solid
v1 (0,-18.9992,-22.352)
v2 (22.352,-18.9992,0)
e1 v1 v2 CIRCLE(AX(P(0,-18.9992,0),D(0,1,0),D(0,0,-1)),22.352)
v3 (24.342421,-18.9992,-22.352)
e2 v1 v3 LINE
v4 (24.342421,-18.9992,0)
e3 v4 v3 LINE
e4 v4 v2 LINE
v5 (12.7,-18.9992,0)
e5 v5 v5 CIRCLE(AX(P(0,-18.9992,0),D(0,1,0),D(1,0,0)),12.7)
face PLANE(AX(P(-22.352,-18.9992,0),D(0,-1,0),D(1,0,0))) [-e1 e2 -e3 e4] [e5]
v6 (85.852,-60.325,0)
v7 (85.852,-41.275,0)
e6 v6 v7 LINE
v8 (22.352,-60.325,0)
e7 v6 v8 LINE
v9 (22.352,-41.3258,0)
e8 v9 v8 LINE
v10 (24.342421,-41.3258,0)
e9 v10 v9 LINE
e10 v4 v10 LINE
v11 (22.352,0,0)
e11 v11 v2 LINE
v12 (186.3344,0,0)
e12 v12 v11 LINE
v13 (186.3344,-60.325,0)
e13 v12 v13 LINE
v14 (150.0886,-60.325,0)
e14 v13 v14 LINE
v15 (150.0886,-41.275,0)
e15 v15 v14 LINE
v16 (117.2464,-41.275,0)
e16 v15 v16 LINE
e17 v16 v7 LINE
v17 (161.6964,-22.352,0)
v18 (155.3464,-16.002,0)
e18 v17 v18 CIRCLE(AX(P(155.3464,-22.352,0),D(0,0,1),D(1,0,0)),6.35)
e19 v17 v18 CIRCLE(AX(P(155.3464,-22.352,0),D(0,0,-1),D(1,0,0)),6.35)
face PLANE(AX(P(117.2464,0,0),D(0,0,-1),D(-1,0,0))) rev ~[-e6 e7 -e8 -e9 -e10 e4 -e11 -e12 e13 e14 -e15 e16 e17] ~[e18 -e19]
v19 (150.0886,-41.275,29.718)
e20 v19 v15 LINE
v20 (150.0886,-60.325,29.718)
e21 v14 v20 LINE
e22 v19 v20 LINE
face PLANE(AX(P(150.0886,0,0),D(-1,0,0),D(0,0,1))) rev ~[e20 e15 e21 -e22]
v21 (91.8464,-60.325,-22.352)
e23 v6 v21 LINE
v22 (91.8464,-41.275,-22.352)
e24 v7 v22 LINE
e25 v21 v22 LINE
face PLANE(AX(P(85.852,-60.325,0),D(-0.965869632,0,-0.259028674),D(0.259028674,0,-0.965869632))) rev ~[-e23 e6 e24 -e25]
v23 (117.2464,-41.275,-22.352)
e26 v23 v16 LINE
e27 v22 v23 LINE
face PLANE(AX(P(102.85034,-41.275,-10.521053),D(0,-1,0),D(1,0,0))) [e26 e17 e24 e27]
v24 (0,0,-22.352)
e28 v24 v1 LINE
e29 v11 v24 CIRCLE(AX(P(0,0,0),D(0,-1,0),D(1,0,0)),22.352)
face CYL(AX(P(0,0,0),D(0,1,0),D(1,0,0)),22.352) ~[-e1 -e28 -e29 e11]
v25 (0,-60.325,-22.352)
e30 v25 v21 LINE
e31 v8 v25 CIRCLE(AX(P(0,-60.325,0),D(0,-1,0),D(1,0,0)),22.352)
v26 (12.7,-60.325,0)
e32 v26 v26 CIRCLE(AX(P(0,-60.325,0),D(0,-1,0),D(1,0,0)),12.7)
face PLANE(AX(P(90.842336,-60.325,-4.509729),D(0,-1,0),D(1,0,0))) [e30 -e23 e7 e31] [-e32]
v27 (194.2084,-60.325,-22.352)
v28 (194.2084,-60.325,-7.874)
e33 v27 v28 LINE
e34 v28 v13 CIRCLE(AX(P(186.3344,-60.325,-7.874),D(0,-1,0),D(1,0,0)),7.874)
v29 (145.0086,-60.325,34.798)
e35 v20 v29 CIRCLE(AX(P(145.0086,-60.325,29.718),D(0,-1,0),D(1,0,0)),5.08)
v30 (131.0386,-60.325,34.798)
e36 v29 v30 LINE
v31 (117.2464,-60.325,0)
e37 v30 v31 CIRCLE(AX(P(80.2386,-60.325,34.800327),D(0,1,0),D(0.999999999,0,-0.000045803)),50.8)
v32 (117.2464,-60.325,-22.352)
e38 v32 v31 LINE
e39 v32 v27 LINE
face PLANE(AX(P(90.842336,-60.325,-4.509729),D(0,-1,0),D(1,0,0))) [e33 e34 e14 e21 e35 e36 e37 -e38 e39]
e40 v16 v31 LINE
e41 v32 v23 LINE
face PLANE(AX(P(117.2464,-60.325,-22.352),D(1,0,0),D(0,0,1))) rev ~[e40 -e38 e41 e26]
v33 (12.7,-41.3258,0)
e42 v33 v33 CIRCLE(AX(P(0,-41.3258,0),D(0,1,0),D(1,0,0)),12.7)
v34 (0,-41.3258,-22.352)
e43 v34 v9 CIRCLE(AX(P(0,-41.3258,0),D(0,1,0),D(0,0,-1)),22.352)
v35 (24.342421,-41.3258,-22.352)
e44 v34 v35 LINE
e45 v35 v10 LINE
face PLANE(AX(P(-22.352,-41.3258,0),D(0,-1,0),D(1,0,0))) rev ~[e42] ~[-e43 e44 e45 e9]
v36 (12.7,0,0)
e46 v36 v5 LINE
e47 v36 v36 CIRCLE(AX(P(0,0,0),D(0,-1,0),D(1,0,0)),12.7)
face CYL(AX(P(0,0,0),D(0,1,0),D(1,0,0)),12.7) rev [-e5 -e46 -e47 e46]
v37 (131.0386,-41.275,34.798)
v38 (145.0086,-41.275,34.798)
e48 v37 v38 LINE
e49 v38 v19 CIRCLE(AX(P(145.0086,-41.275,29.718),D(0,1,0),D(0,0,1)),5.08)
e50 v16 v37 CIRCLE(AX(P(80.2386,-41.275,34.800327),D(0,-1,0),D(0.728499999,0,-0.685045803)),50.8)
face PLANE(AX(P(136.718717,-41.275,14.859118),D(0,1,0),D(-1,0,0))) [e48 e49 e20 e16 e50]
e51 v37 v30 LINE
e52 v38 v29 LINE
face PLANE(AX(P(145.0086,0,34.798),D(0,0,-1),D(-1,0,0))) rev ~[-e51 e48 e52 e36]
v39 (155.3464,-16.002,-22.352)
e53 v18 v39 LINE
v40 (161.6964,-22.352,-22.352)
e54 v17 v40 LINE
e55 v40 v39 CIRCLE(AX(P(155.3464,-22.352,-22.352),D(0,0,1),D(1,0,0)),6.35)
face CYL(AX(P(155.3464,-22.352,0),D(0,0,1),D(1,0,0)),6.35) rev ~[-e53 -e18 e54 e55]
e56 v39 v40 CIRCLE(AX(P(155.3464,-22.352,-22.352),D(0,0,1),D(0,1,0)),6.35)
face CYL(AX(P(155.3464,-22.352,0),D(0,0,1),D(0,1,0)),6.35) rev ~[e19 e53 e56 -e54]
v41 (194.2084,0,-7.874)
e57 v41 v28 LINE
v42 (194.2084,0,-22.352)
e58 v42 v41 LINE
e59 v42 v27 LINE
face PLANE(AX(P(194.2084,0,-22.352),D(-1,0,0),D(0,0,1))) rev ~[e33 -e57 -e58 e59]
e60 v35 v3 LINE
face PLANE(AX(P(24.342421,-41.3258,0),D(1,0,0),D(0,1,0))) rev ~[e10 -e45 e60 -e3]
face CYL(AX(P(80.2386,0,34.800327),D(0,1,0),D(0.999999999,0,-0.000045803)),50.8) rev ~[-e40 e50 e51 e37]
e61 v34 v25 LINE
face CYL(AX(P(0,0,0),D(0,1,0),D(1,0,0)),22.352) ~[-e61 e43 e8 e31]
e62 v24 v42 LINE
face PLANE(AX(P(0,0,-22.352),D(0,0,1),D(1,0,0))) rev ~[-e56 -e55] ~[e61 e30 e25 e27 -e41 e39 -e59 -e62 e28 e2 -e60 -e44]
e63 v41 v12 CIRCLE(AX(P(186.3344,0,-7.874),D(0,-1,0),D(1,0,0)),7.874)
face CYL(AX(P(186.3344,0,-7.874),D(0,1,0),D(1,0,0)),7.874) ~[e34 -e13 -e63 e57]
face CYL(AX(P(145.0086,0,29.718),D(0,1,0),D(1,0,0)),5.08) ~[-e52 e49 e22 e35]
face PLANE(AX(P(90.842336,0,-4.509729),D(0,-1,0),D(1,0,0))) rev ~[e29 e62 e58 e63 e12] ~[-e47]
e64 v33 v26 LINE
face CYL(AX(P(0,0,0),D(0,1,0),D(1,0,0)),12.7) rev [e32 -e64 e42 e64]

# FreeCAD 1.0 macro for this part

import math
import FreeCAD as App
import Part
import Sketcher
Q = App.Units.Quantity

doc = App.newDocument("Part")
body = doc.addObject("PartDesign::Body", "Body")

sketch1 = body.newObject("Sketcher::SketchObject", "Sketch")
sketch1.AttachmentSupport = (doc.getObject("XZ_Plane"), [""])
sketch1.MapMode = "FlatFace"
sketch1.addGeometry(Part.LineSegment(App.Vector(117.2464, 0, 0), App.Vector(22.352, 0, 0)), False)
sketch1.addGeometry(Part.ArcOfCircle(Part.Circle(App.Vector(0, 0, 0), App.Vector(0, 0, 1), 22.352), math.radians(0), math.radians(270)), False)
sketch1.addGeometry(Part.LineSegment(App.Vector(0, -22.352, 0), App.Vector(194.2084, -22.352, 0)), False)
sketch1.addGeometry(Part.LineSegment(App.Vector(194.2084, -22.352, 0), App.Vector(194.2084, -7.874, 0)), False)
sketch1.addGeometry(Part.ArcOfCircle(Part.Circle(App.Vector(186.3344, -7.874, 0), App.Vector(0, 0, 1), 7.874), math.radians(0), math.radians(90)), False)
sketch1.addGeometry(Part.LineSegment(App.Vector(186.3344, 0, 0), App.Vector(150.0886, 0, 0)), False)
sketch1.addGeometry(Part.LineSegment(App.Vector(150.0886, 0, 0), App.Vector(150.0886, 29.718, 0)), False)
sketch1.addGeometry(Part.ArcOfCircle(Part.Circle(App.Vector(145.0086, 29.718, 0), App.Vector(0, 0, 1), 5.08), math.radians(0), math.radians(90)), False)
sketch1.addGeometry(Part.LineSegment(App.Vector(145.0086, 34.798, 0), App.Vector(131.0386, 34.798, 0)), False)
sketch1.addGeometry(Part.ArcOfCircle(Part.Circle(App.Vector(80.2386, 34.800327, 0), App.Vector(0, 0, 1), 50.8), math.radians(-43.239209), math.radians(-0.002624)), False)
sketch1.addGeometry(Part.Circle(App.Vector(0, 0, 0), App.Vector(0, 0, 1), 12.7), False)
sketch1.addConstraint(Sketcher.Constraint("Coincident", 0, 2, 1, 1))
sketch1.addConstraint(Sketcher.Constraint("Tangent", 1, 2, 2, 1))
sketch1.addConstraint(Sketcher.Constraint("Coincident", 2, 2, 3, 1))
sketch1.addConstraint(Sketcher.Constraint("Tangent", 3, 2, 4, 1))
sketch1.addConstraint(Sketcher.Constraint("Tangent", 4, 2, 5, 1))
sketch1.addConstraint(Sketcher.Constraint("Coincident", 5, 2, 6, 1))
sketch1.addConstraint(Sketcher.Constraint("Tangent", 6, 2, 7, 1))
sketch1.addConstraint(Sketcher.Constraint("Tangent", 7, 2, 8, 1))
sketch1.addConstraint(Sketcher.Constraint("Coincident", 8, 2, 9, 2))
sketch1.addConstraint(Sketcher.Constraint("Coincident", 9, 1, 0, 1))
sketch1.addConstraint(Sketcher.Constraint("Horizontal", 0))
sketch1.addConstraint(Sketcher.Constraint("Horizontal", 2))
sketch1.addConstraint(Sketcher.Constraint("Vertical", 3))
sketch1.addConstraint(Sketcher.Constraint("Horizontal", 5))
sketch1.addConstraint(Sketcher.Constraint("Vertical", 6))
sketch1.addConstraint(Sketcher.Constraint("Horizontal", 8))
sketch1.addConstraint(Sketcher.Constraint("Coincident", 1, 3, -1, 1))
sketch1.addConstraint(Sketcher.Constraint("Coincident", 10, 3, -1, 1))
sketch1.addConstraint(Sketcher.Constraint("PointOnObject", 0, 2, -1))
sketch1.addConstraint(Sketcher.Constraint("PointOnObject", 4, 2, -1))
sketch1.addConstraint(Sketcher.Constraint("Diameter", 10, Q("1 in")))
sketch1.addConstraint(Sketcher.Constraint("Radius", 9, Q("2 in")))
sketch1.addConstraint(Sketcher.Constraint("Radius", 7, Q("0.2 in")))
sketch1.addConstraint(Sketcher.Constraint("Radius", 1, Q("0.88 in")))
sketch1.addConstraint(Sketcher.Constraint("Radius", 4, Q("0.31 in")))
sketch1.addConstraint(Sketcher.Constraint("DistanceX", 8, 2, 8, 1, Q("0.55 in")))
sketch1.addConstraint(Sketcher.Constraint("DistanceY", 6, 1, 6, 2, Q("1.17 in")))
sketch1.addConstraint(Sketcher.Constraint("DistanceX", 0, 2, 0, 1, Q("3.736 in")))
sketch1.addConstraint(Sketcher.Constraint("DistanceX", 2, 1, 2, 2, Q("7.646 in")))
sketch1.addConstraint(Sketcher.Constraint("DistanceX", 5, 2, 5, 1, Q("1.427 in")))
pad1 = body.newObject("PartDesign::Pad", "Pad")
pad1.Profile = sketch1
pad1.Length = Q("2.375 in")

sketch2 = body.newObject("Sketcher::SketchObject", "Sketch001")
sketch2.AttachmentSupport = (doc.getObject("XZ_Plane"), [""])
sketch2.MapMode = "FlatFace"
sketch2.AttachmentOffset = App.Placement(App.Vector(0, 0, 2.375 * 25.4), App.Rotation())
sketch2.addGeometry(Part.LineSegment(App.Vector(91.8464, -22.352, 0), App.Vector(117.2464, -22.352, 0)), False)
sketch2.addGeometry(Part.LineSegment(App.Vector(117.2464, -22.352, 0), App.Vector(117.2464, 0, 0)), False)
sketch2.addGeometry(Part.LineSegment(App.Vector(117.2464, 0, 0), App.Vector(85.852, 0, 0)), False)
sketch2.addGeometry(Part.LineSegment(App.Vector(85.852, 0, 0), App.Vector(91.8464, -22.352, 0)), False)
sketch2.addConstraint(Sketcher.Constraint("Coincident", 0, 2, 1, 1))
sketch2.addConstraint(Sketcher.Constraint("Coincident", 1, 2, 2, 1))
sketch2.addConstraint(Sketcher.Constraint("Coincident", 2, 2, 3, 1))
sketch2.addConstraint(Sketcher.Constraint("Coincident", 3, 2, 0, 1))
sketch2.addConstraint(Sketcher.Constraint("Horizontal", 0))
sketch2.addConstraint(Sketcher.Constraint("Vertical", 1))
sketch2.addConstraint(Sketcher.Constraint("Horizontal", 2))
sketch2.addConstraint(Sketcher.Constraint("PointOnObject", 1, 2, -1))
sketch2.addConstraint(Sketcher.Constraint("DistanceX", 0, 1, 0, 2, Q("1 in")))
sketch2.addConstraint(Sketcher.Constraint("DistanceY", 1, 1, 1, 2, Q("0.88 in")))
sketch2.addConstraint(Sketcher.Constraint("DistanceX", 2, 2, 2, 1, Q("1.236 in")))
sketch2.addConstraint(Sketcher.Constraint("DistanceX", -1, 1, 2, 2, Q("3.38 in")))
pocket1 = body.newObject("PartDesign::Pocket", "Pocket")
pocket1.Profile = sketch2
pocket1.Length = Q("0.75 in")

sketch3 = body.newObject("Sketcher::SketchObject", "Sketch002")
sketch3.AttachmentSupport = (doc.getObject("XY_Plane"), [""])
sketch3.MapMode = "FlatFace"
sketch3.addGeometry(Part.LineSegment(App.Vector(-22.352, -18.9992, 0), App.Vector(-22.352, -41.3258, 0)), False)
sketch3.addGeometry(Part.LineSegment(App.Vector(-22.352, -41.3258, 0), App.Vector(24.342421, -41.3258, 0)), False)
sketch3.addGeometry(Part.LineSegment(App.Vector(24.342421, -41.3258, 0), App.Vector(24.342421, -18.9992, 0)), False)
sketch3.addGeometry(Part.LineSegment(App.Vector(24.342421, -18.9992, 0), App.Vector(-22.352, -18.9992, 0)), False)
sketch3.addConstraint(Sketcher.Constraint("Coincident", 0, 2, 1, 1))
sketch3.addConstraint(Sketcher.Constraint("Coincident", 1, 2, 2, 1))
sketch3.addConstraint(Sketcher.Constraint("Coincident", 2, 2, 3, 1))
sketch3.addConstraint(Sketcher.Constraint("Coincident", 3, 2, 0, 1))
sketch3.addConstraint(Sketcher.Constraint("Vertical", 0))
sketch3.addConstraint(Sketcher.Constraint("Horizontal", 1))
sketch3.addConstraint(Sketcher.Constraint("Vertical", 2))
sketch3.addConstraint(Sketcher.Constraint("Horizontal", 3))
sketch3.addConstraint(Sketcher.Constraint("DistanceY", 0, 2, 0, 1, Q("0.879 in")))
sketch3.addConstraint(Sketcher.Constraint("DistanceX", 0, 2, -1, 1, Q("0.88 in")))
sketch3.addConstraint(Sketcher.Constraint("DistanceY", 0, 2, -1, 1, Q("1.627 in")))
sketch3.addConstraint(Sketcher.Constraint("DistanceX", 1, 1, 1, 2, 46.694421))
pocket2 = body.newObject("PartDesign::Pocket", "Pocket001")
pocket2.Profile = sketch3
pocket2.Length = Q("10 in")
pocket2.Midplane = True

sketch4 = body.newObject("Sketcher::SketchObject", "Sketch003")
sketch4.AttachmentSupport = (doc.getObject("XY_Plane"), [""])
sketch4.MapMode = "FlatFace"
sketch4.addGeometry(Part.ArcOfCircle(Part.Circle(App.Vector(155.3464, -22.352, 0), App.Vector(0, 0, 1), 6.35), math.radians(90), math.radians(360)), False)
sketch4.addGeometry(Part.ArcOfCircle(Part.Circle(App.Vector(155.3464, -22.352, 0), App.Vector(0, 0, 1), 6.35), math.radians(0), math.radians(90)), False)
sketch4.addConstraint(Sketcher.Constraint("Tangent", 0, 1, 1, 2))
sketch4.addConstraint(Sketcher.Constraint("Coincident", 1, 1, 0, 2))
sketch4.addConstraint(Sketcher.Constraint("Horizontal", 0, 3, 1, 1))
sketch4.addConstraint(Sketcher.Constraint("Vertical", 1, 3, 0, 1))
sketch4.addConstraint(Sketcher.Constraint("Radius", 0, Q("0.25 in")))
sketch4.addConstraint(Sketcher.Constraint("DistanceY", 0, 3, -1, 1, Q("0.88 in")))
sketch4.addConstraint(Sketcher.Constraint("DistanceX", -1, 1, 0, 3, Q("6.116 in")))
pocket3 = body.newObject("PartDesign::Pocket", "Pocket002")
pocket3.Profile = sketch4
pocket3.Length = Q("10 in")

sketch5 = body.newObject("Sketcher::SketchObject", "Sketch004")
sketch5.AttachmentSupport = (doc.getObject("XZ_Plane"), [""])
sketch5.MapMode = "FlatFace"
sketch5.addGeometry(Part.LineSegment(App.Vector(150.0886, 29.718, 0), App.Vector(150.0886, 0, 0)), False)
sketch5.addGeometry(Part.LineSegment(App.Vector(150.0886, 0, 0), App.Vector(117.2464, 0, 0)), False)
sketch5.addGeometry(Part.ArcOfCircle(Part.Circle(App.Vector(80.2386, 34.800327, 0), App.Vector(0, 0, 1), 50.8), math.radians(-43.239209), math.radians(-0.002624)), False)
sketch5.addGeometry(Part.LineSegment(App.Vector(131.0386, 34.798, 0), App.Vector(145.0086, 34.798, 0)), False)
sketch5.addGeometry(Part.ArcOfCircle(Part.Circle(App.Vector(145.0086, 29.718, 0), App.Vector(0, 0, 1), 5.08), math.radians(0), math.radians(90)), False)
sketch5.addConstraint(Sketcher.Constraint("Coincident", 0, 2, 1, 1))
sketch5.addConstraint(Sketcher.Constraint("Coincident", 1, 2, 2, 1))
sketch5.addConstraint(Sketcher.Constraint("Coincident", 2, 2, 3, 1))
sketch5.addConstraint(Sketcher.Constraint("Tangent", 3, 2, 4, 2))
sketch5.addConstraint(Sketcher.Constraint("Tangent", 4, 1, 0, 1))
sketch5.addConstraint(Sketcher.Constraint("Vertical", 0))
sketch5.addConstraint(Sketcher.Constraint("Horizontal", 1))
sketch5.addConstraint(Sketcher.Constraint("Horizontal", 3))
sketch5.addConstraint(Sketcher.Constraint("PointOnObject", 0, 2, -1))
sketch5.addConstraint(Sketcher.Constraint("Radius", 2, Q("2 in")))
sketch5.addConstraint(Sketcher.Constraint("Radius", 4, Q("0.2 in")))
sketch5.addConstraint(Sketcher.Constraint("DistanceX", 3, 1, 3, 2, Q("0.55 in")))
sketch5.addConstraint(Sketcher.Constraint("DistanceY", 0, 2, 0, 1, Q("1.17 in")))
sketch5.addConstraint(Sketcher.Constraint("DistanceX", 1, 2, 1, 1, Q("1.293 in")))
sketch5.addConstraint(Sketcher.Constraint("DistanceX", -1, 1, 2, 3, Q("3.159 in")))
pocket4 = body.newObject("PartDesign::Pocket", "Pocket003")
pocket4.Profile = sketch5
pocket4.Length = Q("1.625 in")
pocket4.Reversed = True

doc.recompute()
